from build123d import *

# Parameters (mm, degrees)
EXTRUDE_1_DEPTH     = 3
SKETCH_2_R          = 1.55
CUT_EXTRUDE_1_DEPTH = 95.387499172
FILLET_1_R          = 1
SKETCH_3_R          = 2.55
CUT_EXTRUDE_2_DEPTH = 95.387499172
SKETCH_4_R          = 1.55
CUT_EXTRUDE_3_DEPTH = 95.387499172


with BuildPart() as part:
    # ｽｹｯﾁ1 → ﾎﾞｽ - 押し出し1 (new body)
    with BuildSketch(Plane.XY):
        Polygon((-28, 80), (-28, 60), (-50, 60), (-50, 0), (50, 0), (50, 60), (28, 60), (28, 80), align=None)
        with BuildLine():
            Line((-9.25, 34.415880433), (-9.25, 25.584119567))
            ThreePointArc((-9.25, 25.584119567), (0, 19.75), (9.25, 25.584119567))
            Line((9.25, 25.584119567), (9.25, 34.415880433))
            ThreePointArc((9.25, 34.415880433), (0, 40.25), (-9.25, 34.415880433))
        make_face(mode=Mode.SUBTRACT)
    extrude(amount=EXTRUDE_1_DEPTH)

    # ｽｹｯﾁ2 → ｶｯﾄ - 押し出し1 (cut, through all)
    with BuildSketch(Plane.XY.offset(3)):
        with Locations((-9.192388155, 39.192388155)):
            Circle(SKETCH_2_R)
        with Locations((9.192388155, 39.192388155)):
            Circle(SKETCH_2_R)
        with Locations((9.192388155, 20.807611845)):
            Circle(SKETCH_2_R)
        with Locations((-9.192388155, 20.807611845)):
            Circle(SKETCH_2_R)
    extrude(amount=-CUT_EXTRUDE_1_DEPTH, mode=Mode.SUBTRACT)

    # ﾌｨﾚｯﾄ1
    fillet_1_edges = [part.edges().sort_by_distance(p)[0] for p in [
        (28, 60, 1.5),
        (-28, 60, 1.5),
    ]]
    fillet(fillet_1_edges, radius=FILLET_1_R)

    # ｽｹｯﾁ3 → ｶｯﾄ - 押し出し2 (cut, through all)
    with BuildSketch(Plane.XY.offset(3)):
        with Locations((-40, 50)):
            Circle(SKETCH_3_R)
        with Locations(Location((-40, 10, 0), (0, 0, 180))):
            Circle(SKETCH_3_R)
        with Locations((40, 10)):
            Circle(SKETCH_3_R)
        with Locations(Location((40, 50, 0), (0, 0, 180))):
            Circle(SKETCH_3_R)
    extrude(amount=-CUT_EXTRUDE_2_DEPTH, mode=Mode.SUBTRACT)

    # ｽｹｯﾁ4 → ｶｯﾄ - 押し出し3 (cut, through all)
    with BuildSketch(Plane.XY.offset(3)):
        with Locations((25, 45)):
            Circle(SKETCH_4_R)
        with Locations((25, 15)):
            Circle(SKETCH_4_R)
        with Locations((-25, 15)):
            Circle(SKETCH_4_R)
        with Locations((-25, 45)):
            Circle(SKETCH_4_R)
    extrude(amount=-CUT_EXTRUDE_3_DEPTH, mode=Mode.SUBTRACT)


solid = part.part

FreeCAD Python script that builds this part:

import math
import FreeCAD as App
import Part
import Sketcher
from FreeCAD import Vector


def edges_at(feature, points):
    """Names of the edges that pass closest to the given points."""
    edges = feature.Shape.Edges
    near = lambda p: min(range(len(edges)), key=lambda i: edges[i].distToShape(Part.Vertex(*p))[0])
    return sorted({f"Edge{near(p) + 1}" for p in points})


def add_polygon(sketch, points):
    """Adds a closed chain of lines whose ends are joined by coincident constraints."""
    first, n = sketch.GeometryCount, len(points)
    for a, b in zip(points, points[1:] + points[:1]):
        sketch.addGeometry(Part.LineSegment(App.Vector(*a, 0), App.Vector(*b, 0)), False)
    for i in range(n):
        sketch.addConstraint(Sketcher.Constraint("Coincident", first + i, 2, first + (i + 1) % n, 1))

doc = App.newDocument("Part")
body = doc.addObject("PartDesign::Body", "Body")

# Sketch on XY plane
sketch1 = body.newObject("Sketcher::SketchObject", "Sketch")
sketch1.AttachmentSupport = (doc.getObject("XY_Plane"), [""])
sketch1.MapMode = "FlatFace"
add_polygon(sketch1, [(-28, 80), (-28, 60), (-50, 60), (-50, 0), (50, 0), (50, 60), (28, 60), (28, 80)])  # lines 0-7
sketch1.addGeometry(Part.LineSegment(Vector(-9, 26, 0), Vector(-9, 34, 0)), False)  # 8
sketch1.addGeometry(Part.ArcOfCircle(Part.Circle(Vector(0, 30, 0), Vector(0, 0, 1), 10), math.radians(26), math.radians(154)), False)  # 9
sketch1.addGeometry(Part.LineSegment(Vector(9, 34, 0), Vector(9, 26, 0)), False)  # 10
sketch1.addGeometry(Part.ArcOfCircle(Part.Circle(Vector(0, 30, 0), Vector(0, 0, 1), 10), math.radians(-154), math.radians(-26)), False)  # 11
sketch1.addConstraint([
    Sketcher.Constraint("Coincident", 8, 2, 9, 2),
    Sketcher.Constraint("Coincident", 9, 1, 10, 1),
    Sketcher.Constraint("Coincident", 10, 2, 11, 2),
    Sketcher.Constraint("Coincident", 11, 1, 8, 1),
    Sketcher.Constraint("Vertical", 0),
    Sketcher.Constraint("Horizontal", 1),
    Sketcher.Constraint("Vertical", 2),
    Sketcher.Constraint("Horizontal", 3),
    Sketcher.Constraint("Vertical", 4),
    Sketcher.Constraint("Horizontal", 5),
    Sketcher.Constraint("Vertical", 6),
    Sketcher.Constraint("Horizontal", 7),
    Sketcher.Constraint("Vertical", 8),
    Sketcher.Constraint("Vertical", 10),
    Sketcher.Constraint("Coincident", 11, 3, 9, 3),
    Sketcher.Constraint("Equal", 9, 11),
    Sketcher.Constraint("Symmetric", 2, 2, 3, 2, -1, 1),
    Sketcher.Constraint("Symmetric", 0, 2, 5, 2, -2),
    Sketcher.Constraint("Symmetric", 8, 2, 9, 1, -2),
    Sketcher.Constraint("DistanceX", 1, 2, 1, 1, 22.0),
    Sketcher.Constraint("DistanceX", 3, 1, 3, 2, 100.0),
    Sketcher.Constraint("DistanceY", 0, 2, 0, 1, 20.0),
    Sketcher.Constraint("DistanceY", 2, 2, 2, 1, 60.0),
    Sketcher.Constraint("Radius", 9, 10.25),
    Sketcher.Constraint("DistanceY", -1, 1, 9, 3, 30.0),
    Sketcher.Constraint("DistanceX", 8, 2, 9, 1, 18.5),
])
pad1 = body.newObject("PartDesign::Pad", "Pad")
pad1.Profile = sketch1
pad1.Length = 3

# Sketch on XY plane
sketch2 = body.newObject("Sketcher::SketchObject", "Sketch001")
sketch2.AttachmentSupport = (doc.getObject("XY_Plane"), [""])
sketch2.MapMode = "FlatFace"
sketch2.AttachmentOffset = App.Placement(Vector(0, 0, 3), App.Rotation())
sketch2.addGeometry([
    Part.Circle(Vector(-9.2, 39.2, 0), Vector(0, 0, 1), 1.6),
    Part.Circle(Vector(9.2, 39.2, 0), Vector(0, 0, 1), 1.6),
    Part.Circle(Vector(9.2, 20.8, 0), Vector(0, 0, 1), 1.6),
    Part.Circle(Vector(-9.2, 20.8, 0), Vector(0, 0, 1), 1.6),
], False)
sketch2.addConstraint([
    Sketcher.Constraint("Equal", 0, 1),
    Sketcher.Constraint("Equal", 1, 2),
    Sketcher.Constraint("Equal", 2, 3),
    Sketcher.Constraint("Symmetric", 0, 3, 1, 3, -2),
    Sketcher.Constraint("Symmetric", 2, 3, 3, 3, -2),
    Sketcher.Constraint("Vertical", 1, 3, 2, 3),
    Sketcher.Constraint("Diameter", 0, 3.1),
    Sketcher.Constraint("DistanceX", 0, 3, -1, 1, 9.192388),
    Sketcher.Constraint("DistanceY", -1, 1, 0, 3, 39.192388),
    Sketcher.Constraint("DistanceY", -1, 1, 2, 3, 20.807612),
])
pocket1 = body.newObject("PartDesign::Pocket", "Pocket")
pocket1.Profile = sketch2
pocket1.Type = "ThroughAll"
doc.recompute()

fillet = body.newObject("PartDesign::Fillet", "Fillet")
fillet.Base = (pocket1, edges_at(pocket1, [(28, 60, 1.5), (-28, 60, 1.5)]))
fillet.Radius = 1

# Sketch on XY plane
sketch3 = body.newObject("Sketcher::SketchObject", "Sketch002")
sketch3.AttachmentSupport = (doc.getObject("XY_Plane"), [""])
sketch3.MapMode = "FlatFace"
sketch3.AttachmentOffset = App.Placement(Vector(0, 0, 3), App.Rotation())
sketch3.addGeometry([
    Part.Circle(Vector(-40, 50, 0), Vector(0, 0, 1), 2.5),
    Part.Circle(Vector(-40, 10, 0), Vector(0, 0, 1), 2.5),
    Part.Circle(Vector(40, 10, 0), Vector(0, 0, 1), 2.5),
    Part.Circle(Vector(40, 50, 0), Vector(0, 0, 1), 2.5),
], False)
sketch3.addConstraint([
    Sketcher.Constraint("Equal", 0, 1),
    Sketcher.Constraint("Equal", 1, 2),
    Sketcher.Constraint("Equal", 2, 3),
    Sketcher.Constraint("Symmetric", 1, 3, 2, 3, -2),
    Sketcher.Constraint("Symmetric", 0, 3, 3, 3, -2),
    Sketcher.Constraint("Vertical", 0, 3, 1, 3),
    Sketcher.Constraint("Diameter", 0, 5.1),
    Sketcher.Constraint("DistanceX", 0, 3, -1, 1, 40.0),
    Sketcher.Constraint("DistanceY", -1, 1, 0, 3, 50.0),
    Sketcher.Constraint("DistanceY", -1, 1, 1, 3, 10.0),
])
pocket2 = body.newObject("PartDesign::Pocket", "Pocket001")
pocket2.Profile = sketch3
pocket2.Type = "ThroughAll"

# Sketch on XY plane
sketch4 = body.newObject("Sketcher::SketchObject", "Sketch003")
sketch4.AttachmentSupport = (doc.getObject("XY_Plane"), [""])
sketch4.MapMode = "FlatFace"
sketch4.AttachmentOffset = App.Placement(Vector(0, 0, 3), App.Rotation())
sketch4.addGeometry([
    Part.Circle(Vector(25, 45, 0), Vector(0, 0, 1), 1.6),
    Part.Circle(Vector(25, 15, 0), Vector(0, 0, 1), 1.6),
    Part.Circle(Vector(-25, 15, 0), Vector(0, 0, 1), 1.6),
    Part.Circle(Vector(-25, 45, 0), Vector(0, 0, 1), 1.6),
], False)
sketch4.addConstraint([
    Sketcher.Constraint("Equal", 0, 1),
    Sketcher.Constraint("Equal", 1, 2),
    Sketcher.Constraint("Equal", 2, 3),
    Sketcher.Constraint("Symmetric", 1, 3, 2, 3, -2),
    Sketcher.Constraint("Symmetric", 0, 3, 3, 3, -2),
    Sketcher.Constraint("Vertical", 0, 3, 1, 3),
    Sketcher.Constraint("Diameter", 0, 3.1),
    Sketcher.Constraint("DistanceX", -1, 1, 0, 3, 25.0),
    Sketcher.Constraint("DistanceY", -1, 1, 0, 3, 45.0),
    Sketcher.Constraint("DistanceY", -1, 1, 1, 3, 15.0),
])
pocket3 = body.newObject("PartDesign::Pocket", "Pocket002")
pocket3.Profile = sketch4
pocket3.Type = "ThroughAll"

doc.recompute()
